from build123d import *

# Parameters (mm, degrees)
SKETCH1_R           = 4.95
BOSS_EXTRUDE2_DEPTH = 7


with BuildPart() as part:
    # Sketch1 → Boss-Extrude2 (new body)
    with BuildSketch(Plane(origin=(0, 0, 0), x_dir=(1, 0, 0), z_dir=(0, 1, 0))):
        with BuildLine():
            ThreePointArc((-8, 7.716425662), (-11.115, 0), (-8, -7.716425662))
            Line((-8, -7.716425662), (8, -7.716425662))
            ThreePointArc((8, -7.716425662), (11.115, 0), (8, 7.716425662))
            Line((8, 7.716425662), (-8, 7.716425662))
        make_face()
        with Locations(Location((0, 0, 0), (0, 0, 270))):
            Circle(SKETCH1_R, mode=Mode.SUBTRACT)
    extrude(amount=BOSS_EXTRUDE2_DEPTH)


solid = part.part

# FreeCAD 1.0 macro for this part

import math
import FreeCAD as App
import Part
import Sketcher

V = App.Vector

doc = App.newDocument("Part")
body = doc.addObject("PartDesign::Body", "Body")

sketch1 = body.newObject("Sketcher::SketchObject", "Sketch")
sketch1.AttachmentSupport = (doc.getObject("XZ_Plane"), [""])
sketch1.MapMode = "FlatFace"
sketch1.addGeometry(Part.ArcOfCircle(Part.Circle(V(0, 0, 0), V(0, 0, 1), 11.1), math.radians(136), math.radians(224)), False)
sketch1.addGeometry(Part.LineSegment(V(-8, 7.7, 0), V(8, 7.7, 0)), False)
sketch1.addGeometry(Part.ArcOfCircle(Part.Circle(V(0, 0, 0), V(0, 0, 1), 11.1), math.radians(-44), math.radians(44)), False)
sketch1.addGeometry(Part.LineSegment(V(8, -7.7, 0), V(-8, -7.7, 0)), False)
sketch1.addGeometry(Part.Circle(V(0, 0, 0), V(0, 0, 1), 5), False)
sketch1.addConstraint(Sketcher.Constraint("Coincident", 0, 1, 1, 1))
sketch1.addConstraint(Sketcher.Constraint("Coincident", 1, 2, 2, 2))
sketch1.addConstraint(Sketcher.Constraint("Coincident", 2, 1, 3, 1))
sketch1.addConstraint(Sketcher.Constraint("Coincident", 3, 2, 0, 2))
sketch1.addConstraint(Sketcher.Constraint("Horizontal", 1))
sketch1.addConstraint(Sketcher.Constraint("Horizontal", 3))
sketch1.addConstraint(Sketcher.Constraint("Coincident", 0, 3, -1, 1))
sketch1.addConstraint(Sketcher.Constraint("Coincident", 2, 3, -1, 1))
sketch1.addConstraint(Sketcher.Constraint("Coincident", 4, 3, -1, 1))
sketch1.addConstraint(Sketcher.Constraint("Equal", 0, 2))
sketch1.addConstraint(Sketcher.Constraint("Vertical", 1, 2, 2, 1))
sketch1.addConstraint(Sketcher.Constraint("Diameter", 4, 9.9))
sketch1.addConstraint(Sketcher.Constraint("DistanceX", 1, 1, 1, 2, 16.0))
sketch1.addConstraint(Sketcher.Constraint("Radius", 0, 11.115))
pad1 = body.newObject("PartDesign::Pad", "Pad")
pad1.Profile = sketch1
pad1.Length = 7
pad1.Reversed = True

doc.recompute()
